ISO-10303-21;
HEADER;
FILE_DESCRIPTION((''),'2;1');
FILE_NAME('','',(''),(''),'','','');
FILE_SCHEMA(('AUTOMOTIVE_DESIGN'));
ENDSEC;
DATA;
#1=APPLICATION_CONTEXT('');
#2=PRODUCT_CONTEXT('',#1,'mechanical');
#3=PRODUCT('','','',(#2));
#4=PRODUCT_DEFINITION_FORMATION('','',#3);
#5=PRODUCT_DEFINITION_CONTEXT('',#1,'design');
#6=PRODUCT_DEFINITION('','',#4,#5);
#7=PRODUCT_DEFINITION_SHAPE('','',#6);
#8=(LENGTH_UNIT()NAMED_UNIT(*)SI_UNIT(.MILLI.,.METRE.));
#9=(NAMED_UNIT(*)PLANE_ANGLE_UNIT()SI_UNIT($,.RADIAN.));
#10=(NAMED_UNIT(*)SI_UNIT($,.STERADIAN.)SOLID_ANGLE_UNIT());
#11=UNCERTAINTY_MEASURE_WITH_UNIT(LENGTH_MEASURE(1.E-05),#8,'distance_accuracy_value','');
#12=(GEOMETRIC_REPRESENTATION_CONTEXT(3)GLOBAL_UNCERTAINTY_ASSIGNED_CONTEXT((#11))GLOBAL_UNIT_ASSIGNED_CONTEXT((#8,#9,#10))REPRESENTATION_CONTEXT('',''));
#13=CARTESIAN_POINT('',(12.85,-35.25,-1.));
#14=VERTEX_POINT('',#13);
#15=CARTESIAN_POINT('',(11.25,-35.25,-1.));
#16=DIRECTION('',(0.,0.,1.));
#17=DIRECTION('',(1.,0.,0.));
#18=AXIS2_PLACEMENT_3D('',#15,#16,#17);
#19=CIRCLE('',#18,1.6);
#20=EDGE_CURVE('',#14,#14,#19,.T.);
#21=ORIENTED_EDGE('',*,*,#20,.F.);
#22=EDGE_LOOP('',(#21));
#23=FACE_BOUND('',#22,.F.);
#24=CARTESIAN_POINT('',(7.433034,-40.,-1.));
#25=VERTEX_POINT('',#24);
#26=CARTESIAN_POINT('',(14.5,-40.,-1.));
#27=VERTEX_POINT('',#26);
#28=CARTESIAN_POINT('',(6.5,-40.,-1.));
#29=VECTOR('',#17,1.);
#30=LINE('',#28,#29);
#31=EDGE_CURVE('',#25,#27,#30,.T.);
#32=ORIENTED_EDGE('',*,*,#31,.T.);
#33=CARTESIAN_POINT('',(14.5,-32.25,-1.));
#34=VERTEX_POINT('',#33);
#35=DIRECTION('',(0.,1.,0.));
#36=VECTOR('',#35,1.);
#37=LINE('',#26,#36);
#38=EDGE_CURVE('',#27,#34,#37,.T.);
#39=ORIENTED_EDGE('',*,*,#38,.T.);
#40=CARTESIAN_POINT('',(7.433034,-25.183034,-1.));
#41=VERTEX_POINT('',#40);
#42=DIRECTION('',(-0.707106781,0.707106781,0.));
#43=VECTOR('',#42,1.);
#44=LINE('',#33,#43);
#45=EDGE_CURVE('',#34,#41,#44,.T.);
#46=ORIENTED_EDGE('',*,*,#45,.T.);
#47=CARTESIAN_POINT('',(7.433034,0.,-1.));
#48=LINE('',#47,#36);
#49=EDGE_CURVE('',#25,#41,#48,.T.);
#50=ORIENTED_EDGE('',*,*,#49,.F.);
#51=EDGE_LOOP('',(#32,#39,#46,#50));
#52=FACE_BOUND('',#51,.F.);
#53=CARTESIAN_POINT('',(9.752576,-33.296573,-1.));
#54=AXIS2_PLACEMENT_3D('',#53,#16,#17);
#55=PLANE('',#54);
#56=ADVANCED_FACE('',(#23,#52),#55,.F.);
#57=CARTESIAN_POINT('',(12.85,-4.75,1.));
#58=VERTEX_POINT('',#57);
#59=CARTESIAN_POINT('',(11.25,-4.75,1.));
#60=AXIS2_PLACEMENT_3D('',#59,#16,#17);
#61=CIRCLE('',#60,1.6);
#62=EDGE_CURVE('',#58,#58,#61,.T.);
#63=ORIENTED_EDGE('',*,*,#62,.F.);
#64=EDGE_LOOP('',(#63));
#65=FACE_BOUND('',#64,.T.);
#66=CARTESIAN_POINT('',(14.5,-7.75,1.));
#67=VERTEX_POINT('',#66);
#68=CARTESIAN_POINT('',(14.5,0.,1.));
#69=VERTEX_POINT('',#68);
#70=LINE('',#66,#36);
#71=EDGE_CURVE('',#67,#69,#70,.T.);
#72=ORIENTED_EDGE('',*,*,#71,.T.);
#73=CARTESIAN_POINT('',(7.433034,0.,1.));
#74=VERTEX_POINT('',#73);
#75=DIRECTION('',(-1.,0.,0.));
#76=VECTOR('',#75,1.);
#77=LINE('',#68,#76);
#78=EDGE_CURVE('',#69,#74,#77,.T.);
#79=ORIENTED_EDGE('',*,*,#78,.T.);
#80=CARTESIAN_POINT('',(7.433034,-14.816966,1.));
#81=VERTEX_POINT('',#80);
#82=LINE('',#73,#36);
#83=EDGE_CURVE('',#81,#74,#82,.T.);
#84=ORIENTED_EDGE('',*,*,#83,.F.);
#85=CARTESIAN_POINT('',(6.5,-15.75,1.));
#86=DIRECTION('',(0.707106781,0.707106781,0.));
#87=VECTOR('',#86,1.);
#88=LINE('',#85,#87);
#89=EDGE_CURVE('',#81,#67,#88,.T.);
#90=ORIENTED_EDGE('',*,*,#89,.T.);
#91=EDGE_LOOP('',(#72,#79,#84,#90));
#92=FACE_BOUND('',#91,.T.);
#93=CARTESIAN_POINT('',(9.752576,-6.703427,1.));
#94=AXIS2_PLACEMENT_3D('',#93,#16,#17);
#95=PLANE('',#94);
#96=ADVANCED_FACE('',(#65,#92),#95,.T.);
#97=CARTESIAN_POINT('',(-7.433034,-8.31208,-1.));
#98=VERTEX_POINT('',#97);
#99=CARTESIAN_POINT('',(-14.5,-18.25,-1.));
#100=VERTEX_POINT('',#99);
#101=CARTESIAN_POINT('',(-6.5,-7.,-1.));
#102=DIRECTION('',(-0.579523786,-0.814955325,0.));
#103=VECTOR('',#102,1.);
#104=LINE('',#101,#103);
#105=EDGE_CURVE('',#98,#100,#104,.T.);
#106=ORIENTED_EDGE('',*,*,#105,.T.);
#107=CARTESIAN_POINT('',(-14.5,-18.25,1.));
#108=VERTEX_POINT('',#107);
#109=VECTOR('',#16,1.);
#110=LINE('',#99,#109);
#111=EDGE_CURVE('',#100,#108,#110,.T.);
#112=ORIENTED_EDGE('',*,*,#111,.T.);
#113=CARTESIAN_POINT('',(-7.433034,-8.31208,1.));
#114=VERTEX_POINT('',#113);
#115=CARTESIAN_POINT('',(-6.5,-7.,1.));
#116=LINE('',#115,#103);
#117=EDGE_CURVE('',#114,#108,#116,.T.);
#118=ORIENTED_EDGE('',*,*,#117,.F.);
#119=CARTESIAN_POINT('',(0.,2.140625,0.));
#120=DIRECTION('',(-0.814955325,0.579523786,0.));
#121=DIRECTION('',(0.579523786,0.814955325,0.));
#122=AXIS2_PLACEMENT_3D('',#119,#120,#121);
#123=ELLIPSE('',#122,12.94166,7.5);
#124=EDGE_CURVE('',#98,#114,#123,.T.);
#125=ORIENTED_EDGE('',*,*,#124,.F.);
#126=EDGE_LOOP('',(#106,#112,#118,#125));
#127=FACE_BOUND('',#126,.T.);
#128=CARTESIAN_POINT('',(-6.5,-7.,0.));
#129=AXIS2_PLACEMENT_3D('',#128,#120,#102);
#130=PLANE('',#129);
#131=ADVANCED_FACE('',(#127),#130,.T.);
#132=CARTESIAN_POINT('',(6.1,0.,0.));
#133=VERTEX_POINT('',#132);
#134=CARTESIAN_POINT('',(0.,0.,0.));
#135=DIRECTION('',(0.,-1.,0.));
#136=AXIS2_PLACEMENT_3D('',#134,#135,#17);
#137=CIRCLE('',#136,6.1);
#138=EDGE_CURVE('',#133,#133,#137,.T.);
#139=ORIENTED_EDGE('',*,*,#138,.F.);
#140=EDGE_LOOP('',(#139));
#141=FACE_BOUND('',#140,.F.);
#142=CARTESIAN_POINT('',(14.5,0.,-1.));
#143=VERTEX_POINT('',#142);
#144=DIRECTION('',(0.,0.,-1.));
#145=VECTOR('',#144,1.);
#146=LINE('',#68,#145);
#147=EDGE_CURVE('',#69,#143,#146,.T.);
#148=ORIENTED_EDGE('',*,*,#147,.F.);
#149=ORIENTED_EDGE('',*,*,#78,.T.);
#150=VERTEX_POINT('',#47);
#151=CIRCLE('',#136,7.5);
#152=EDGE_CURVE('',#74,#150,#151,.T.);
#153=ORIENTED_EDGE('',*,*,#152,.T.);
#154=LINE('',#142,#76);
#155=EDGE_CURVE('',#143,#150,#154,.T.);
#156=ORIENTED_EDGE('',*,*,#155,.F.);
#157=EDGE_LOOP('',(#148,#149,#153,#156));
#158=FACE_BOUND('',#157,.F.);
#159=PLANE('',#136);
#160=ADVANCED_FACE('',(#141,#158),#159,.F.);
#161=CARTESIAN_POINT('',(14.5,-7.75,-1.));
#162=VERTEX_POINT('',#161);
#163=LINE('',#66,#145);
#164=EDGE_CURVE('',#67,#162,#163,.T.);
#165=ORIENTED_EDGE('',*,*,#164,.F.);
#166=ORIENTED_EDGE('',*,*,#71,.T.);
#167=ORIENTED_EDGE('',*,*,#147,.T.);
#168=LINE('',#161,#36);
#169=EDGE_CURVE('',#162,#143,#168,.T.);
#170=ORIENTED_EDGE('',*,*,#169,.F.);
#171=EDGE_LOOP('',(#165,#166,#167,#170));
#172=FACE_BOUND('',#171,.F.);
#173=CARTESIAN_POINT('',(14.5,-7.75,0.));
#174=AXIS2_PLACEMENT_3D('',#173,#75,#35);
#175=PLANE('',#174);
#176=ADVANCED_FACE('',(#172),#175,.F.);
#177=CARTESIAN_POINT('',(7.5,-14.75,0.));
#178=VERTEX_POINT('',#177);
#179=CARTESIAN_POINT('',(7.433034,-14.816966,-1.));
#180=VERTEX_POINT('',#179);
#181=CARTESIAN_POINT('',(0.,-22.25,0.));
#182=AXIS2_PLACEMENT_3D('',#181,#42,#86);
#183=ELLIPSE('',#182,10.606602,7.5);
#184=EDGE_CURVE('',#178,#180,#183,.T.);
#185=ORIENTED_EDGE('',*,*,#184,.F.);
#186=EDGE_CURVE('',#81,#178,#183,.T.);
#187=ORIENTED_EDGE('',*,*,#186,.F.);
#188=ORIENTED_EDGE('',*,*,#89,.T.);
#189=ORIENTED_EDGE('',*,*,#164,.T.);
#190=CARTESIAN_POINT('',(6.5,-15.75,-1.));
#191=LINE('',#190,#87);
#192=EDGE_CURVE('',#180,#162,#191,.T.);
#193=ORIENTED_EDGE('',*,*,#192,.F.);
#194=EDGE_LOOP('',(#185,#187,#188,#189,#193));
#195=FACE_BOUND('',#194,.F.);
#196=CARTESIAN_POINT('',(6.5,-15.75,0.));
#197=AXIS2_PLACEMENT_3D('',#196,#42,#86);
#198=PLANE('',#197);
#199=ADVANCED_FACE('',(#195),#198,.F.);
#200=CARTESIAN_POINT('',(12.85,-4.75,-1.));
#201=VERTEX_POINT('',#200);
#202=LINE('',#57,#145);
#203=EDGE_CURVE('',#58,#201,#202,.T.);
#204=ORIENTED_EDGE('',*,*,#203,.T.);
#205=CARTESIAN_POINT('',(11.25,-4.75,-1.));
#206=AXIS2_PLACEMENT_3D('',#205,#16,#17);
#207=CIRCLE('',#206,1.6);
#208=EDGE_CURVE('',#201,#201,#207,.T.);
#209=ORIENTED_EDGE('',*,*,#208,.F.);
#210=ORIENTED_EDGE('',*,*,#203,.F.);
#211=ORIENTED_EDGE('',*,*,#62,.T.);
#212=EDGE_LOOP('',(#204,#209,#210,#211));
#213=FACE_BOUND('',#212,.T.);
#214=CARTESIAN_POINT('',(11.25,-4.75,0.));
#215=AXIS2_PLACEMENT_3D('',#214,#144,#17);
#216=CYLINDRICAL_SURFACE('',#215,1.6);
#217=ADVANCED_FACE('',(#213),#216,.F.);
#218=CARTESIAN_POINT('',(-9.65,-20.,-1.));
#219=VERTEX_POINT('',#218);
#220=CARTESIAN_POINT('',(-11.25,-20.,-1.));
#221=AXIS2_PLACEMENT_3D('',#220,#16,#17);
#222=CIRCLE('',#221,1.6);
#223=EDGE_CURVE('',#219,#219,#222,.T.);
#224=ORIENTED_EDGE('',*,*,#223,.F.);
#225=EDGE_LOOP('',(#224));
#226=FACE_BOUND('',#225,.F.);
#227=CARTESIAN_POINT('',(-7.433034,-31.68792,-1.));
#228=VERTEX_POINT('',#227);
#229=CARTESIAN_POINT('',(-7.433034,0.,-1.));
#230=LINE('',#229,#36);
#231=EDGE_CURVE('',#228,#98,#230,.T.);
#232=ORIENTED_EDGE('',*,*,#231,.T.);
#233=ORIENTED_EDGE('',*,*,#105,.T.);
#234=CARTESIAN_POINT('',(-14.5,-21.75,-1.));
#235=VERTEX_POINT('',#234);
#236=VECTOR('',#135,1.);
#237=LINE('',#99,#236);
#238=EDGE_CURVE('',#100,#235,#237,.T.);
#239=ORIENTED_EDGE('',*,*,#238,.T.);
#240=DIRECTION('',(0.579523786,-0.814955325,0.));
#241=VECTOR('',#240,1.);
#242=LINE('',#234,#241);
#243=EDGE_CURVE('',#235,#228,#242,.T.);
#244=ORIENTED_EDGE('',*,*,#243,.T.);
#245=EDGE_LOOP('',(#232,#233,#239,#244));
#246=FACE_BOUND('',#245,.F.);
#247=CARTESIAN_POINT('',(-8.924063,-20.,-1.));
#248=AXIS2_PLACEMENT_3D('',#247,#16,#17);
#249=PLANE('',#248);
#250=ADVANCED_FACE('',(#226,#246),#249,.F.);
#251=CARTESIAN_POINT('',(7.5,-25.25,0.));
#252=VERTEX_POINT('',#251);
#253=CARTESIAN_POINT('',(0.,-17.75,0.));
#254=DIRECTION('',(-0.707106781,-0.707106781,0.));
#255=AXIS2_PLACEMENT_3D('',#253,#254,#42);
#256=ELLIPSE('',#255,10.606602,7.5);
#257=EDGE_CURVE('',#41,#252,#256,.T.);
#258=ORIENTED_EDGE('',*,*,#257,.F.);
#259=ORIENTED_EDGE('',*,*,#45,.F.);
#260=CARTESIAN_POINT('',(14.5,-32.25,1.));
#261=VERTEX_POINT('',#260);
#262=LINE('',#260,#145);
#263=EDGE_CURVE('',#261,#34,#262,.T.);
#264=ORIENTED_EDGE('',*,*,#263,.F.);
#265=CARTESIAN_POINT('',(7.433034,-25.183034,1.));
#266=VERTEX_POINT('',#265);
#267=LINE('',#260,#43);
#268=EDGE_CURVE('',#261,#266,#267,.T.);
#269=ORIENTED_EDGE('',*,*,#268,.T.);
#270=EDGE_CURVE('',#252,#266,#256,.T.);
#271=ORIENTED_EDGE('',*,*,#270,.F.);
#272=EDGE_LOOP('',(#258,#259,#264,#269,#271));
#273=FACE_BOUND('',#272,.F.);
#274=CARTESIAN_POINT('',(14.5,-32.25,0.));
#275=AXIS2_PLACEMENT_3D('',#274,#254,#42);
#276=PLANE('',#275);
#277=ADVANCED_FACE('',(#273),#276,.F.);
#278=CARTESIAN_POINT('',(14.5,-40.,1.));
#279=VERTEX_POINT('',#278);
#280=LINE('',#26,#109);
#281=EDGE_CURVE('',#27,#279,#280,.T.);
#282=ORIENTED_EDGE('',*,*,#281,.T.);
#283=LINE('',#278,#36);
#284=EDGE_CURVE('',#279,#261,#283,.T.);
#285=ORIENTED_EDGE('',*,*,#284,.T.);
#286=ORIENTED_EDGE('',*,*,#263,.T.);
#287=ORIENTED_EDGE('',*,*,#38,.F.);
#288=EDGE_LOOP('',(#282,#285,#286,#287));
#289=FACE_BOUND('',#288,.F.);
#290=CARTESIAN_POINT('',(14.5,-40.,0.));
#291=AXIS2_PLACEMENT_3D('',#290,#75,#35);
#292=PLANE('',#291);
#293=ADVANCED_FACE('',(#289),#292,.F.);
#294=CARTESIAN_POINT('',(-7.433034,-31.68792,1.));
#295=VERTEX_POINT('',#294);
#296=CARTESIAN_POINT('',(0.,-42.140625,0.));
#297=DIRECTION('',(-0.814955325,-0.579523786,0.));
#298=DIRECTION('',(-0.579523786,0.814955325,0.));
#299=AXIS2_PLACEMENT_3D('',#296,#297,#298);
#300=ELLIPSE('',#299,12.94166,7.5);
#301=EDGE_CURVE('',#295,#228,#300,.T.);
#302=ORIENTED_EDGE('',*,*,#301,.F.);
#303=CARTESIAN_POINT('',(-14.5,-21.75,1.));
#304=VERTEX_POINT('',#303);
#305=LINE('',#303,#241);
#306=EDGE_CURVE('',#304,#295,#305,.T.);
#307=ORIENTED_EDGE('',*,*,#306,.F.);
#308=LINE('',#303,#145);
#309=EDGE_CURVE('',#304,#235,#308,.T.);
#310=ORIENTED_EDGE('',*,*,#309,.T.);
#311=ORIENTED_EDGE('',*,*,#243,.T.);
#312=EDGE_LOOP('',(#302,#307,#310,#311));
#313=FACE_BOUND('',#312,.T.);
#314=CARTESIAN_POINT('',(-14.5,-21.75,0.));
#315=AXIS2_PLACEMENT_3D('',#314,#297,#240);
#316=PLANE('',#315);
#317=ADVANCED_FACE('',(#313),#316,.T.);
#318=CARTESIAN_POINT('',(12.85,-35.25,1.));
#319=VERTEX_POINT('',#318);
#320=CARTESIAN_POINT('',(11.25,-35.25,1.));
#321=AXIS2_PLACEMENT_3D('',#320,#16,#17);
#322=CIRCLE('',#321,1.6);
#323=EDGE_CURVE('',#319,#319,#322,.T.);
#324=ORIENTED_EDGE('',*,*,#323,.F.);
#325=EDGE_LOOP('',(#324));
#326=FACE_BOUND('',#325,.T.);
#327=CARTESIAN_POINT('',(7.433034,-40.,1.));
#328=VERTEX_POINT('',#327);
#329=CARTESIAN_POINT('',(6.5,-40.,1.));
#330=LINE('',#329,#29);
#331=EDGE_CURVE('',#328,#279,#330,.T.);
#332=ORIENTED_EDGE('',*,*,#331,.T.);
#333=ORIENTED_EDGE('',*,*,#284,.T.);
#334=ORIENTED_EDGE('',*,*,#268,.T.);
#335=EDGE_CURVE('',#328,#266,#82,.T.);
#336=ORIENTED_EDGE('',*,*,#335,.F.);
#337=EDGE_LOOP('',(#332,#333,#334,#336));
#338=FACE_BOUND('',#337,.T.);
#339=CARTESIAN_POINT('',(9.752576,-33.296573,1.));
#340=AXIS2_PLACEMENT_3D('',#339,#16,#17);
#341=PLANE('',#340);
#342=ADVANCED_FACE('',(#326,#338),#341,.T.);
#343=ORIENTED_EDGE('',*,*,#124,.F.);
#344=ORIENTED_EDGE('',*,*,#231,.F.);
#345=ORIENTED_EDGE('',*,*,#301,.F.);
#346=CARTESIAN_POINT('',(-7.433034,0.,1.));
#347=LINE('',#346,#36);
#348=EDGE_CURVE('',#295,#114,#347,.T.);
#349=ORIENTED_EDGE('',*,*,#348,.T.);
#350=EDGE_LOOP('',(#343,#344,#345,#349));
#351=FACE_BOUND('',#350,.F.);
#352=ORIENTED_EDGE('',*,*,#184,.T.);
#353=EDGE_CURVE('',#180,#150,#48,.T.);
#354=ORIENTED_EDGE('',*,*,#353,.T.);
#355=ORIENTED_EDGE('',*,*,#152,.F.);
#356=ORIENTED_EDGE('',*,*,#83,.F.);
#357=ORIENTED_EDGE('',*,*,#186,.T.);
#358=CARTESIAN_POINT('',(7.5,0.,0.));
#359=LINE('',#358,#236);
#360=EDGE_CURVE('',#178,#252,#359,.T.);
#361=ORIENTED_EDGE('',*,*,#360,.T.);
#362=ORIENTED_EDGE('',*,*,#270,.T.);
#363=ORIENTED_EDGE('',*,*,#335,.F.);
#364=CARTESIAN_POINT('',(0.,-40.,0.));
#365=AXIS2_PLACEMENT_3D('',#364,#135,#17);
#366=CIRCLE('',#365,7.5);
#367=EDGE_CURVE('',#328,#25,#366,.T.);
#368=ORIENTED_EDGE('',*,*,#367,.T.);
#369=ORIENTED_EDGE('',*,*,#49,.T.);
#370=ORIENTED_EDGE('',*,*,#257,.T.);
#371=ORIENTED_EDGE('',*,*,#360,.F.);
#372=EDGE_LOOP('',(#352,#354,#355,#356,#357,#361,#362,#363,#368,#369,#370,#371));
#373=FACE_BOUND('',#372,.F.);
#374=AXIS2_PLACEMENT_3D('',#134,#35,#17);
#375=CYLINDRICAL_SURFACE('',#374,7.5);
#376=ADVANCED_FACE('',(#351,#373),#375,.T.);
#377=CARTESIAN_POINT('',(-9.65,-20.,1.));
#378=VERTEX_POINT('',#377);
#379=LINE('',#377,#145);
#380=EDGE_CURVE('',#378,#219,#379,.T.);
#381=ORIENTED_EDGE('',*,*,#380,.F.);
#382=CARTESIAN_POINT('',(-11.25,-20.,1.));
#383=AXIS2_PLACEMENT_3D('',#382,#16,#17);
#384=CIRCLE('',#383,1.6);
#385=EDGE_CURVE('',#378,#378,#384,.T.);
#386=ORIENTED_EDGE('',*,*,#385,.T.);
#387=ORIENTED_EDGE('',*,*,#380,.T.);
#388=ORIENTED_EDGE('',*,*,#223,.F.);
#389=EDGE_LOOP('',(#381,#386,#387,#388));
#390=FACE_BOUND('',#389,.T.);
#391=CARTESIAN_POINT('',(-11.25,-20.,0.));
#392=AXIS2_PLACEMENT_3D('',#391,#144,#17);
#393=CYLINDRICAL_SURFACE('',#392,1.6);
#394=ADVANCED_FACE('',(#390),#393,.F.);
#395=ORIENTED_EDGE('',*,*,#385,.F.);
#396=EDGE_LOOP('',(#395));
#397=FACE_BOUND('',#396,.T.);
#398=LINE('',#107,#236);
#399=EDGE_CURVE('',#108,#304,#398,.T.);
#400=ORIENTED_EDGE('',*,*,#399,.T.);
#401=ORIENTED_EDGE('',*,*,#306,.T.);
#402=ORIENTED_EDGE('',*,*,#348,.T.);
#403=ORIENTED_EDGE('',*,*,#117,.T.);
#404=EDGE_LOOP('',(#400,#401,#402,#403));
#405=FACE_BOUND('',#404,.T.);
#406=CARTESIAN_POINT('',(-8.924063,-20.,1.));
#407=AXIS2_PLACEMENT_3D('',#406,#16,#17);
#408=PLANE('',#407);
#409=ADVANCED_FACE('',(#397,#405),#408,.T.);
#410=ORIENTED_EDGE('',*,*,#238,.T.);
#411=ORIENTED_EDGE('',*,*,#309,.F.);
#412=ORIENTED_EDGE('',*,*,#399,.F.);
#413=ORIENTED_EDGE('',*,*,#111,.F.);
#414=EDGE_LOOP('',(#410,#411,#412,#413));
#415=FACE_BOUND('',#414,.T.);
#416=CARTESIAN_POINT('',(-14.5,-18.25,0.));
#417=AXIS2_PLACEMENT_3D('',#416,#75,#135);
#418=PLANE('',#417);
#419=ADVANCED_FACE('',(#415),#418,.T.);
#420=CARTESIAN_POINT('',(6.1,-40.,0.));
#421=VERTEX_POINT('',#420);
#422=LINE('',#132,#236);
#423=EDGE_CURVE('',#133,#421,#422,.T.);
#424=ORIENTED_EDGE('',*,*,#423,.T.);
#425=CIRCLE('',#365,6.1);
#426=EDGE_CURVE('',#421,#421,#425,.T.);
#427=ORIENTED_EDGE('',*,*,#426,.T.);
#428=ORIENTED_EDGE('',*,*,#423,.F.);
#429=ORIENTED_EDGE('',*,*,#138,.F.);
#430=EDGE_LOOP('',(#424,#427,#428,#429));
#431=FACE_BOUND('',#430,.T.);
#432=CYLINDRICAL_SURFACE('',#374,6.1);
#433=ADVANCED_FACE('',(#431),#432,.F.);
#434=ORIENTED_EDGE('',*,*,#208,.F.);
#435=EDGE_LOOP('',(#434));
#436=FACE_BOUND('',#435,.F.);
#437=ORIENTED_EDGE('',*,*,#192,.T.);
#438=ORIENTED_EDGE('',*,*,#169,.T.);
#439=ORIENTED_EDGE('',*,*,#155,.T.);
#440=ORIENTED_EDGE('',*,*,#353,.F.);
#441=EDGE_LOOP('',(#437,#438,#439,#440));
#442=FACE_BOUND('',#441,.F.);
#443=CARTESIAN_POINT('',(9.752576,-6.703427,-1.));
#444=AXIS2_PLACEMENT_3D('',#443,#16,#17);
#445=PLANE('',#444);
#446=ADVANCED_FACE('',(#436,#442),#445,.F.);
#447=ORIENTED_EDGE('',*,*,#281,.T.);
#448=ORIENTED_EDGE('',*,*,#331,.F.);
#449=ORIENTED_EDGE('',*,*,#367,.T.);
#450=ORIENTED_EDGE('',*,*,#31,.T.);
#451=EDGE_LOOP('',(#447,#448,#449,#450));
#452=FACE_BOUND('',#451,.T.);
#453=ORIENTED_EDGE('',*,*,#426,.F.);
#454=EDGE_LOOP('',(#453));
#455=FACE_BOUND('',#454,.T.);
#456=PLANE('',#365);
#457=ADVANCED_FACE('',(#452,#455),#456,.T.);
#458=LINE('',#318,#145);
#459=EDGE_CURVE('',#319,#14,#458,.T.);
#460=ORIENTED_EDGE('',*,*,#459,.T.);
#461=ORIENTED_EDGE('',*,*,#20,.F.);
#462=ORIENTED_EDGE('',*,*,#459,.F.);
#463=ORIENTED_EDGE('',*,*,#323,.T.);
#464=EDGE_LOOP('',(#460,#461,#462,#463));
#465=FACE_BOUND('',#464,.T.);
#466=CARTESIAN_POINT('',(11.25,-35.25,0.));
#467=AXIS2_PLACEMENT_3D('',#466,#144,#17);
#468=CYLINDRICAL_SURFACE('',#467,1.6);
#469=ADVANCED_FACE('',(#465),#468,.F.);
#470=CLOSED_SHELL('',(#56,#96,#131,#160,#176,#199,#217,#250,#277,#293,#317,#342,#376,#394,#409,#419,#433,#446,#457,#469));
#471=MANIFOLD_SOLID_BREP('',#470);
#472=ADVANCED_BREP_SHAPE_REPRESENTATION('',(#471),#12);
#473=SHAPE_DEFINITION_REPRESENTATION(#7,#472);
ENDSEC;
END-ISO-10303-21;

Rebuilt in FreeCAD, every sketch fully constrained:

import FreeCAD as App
import Part
import Sketcher


def add_polygon(sketch, points):
    """Adds a closed chain of lines whose ends are joined by coincident constraints."""
    first, n = sketch.GeometryCount, len(points)
    for a, b in zip(points, points[1:] + points[:1]):
        sketch.addGeometry(Part.LineSegment(App.Vector(*a, 0), App.Vector(*b, 0)), False)
    for i in range(n):
        sketch.addConstraint(Sketcher.Constraint("Coincident", first + i, 2, first + (i + 1) % n, 1))

doc = App.newDocument("Part")
body = doc.addObject("PartDesign::Body", "Body")

sketch1 = doc.addObject("Sketcher::SketchObject", "Sketch")
body.addObject(sketch1)
sketch1.AttachmentSupport = (doc.XZ_Plane, [""])
sketch1.MapMode = "FlatFace"
sketch1.addGeometry(Part.Circle(App.Vector(0, 0, 0), App.Vector(0, 0, 1), 7.5), False)
sketch1.addGeometry(Part.Circle(App.Vector(0, 0, 0), App.Vector(0, 0, 1), 6.1), False)
sketch1.addConstraint(Sketcher.Constraint("Coincident", 0, 3, -1, 1))
sketch1.addConstraint(Sketcher.Constraint("Coincident", 1, 3, -1, 1))
sketch1.addConstraint(Sketcher.Constraint("Diameter", 0, 15.0))
sketch1.addConstraint(Sketcher.Constraint("Diameter", 1, 12.2))
pad1 = doc.addObject("PartDesign::Pad", "Pad")
body.addObject(pad1)
pad1.Profile = sketch1
pad1.Length = 40

sketch2 = doc.addObject("Sketcher::SketchObject", "Sketch001")
body.addObject(sketch2)
sketch2.AttachmentSupport = (doc.XY_Plane, [""])
sketch2.MapMode = "FlatFace"
add_polygon(sketch2, [(14.5, 0), (6.5, 0), (6.5, -15.75), (14.5, -7.75)])
sketch2.addGeometry(Part.Circle(App.Vector(11.25, -4.75, 0), App.Vector(0, 0, 1), 1.6), False)
add_polygon(sketch2, [(6.5, -24.25), (6.5, -40), (14.5, -40), (14.5, -32.25)])
sketch2.addGeometry(Part.Circle(App.Vector(11.25, -35.25, 0), App.Vector(0, 0, 1), 1.6), False)
add_polygon(sketch2, [(-6.5, -33), (-6.5, -7), (-14.5, -18.25), (-14.5, -21.75)])
sketch2.addGeometry(Part.Circle(App.Vector(-11.25, -20, 0), App.Vector(0, 0, 1), 1.6), False)
sketch2.addConstraint(Sketcher.Constraint("Horizontal", 0))
sketch2.addConstraint(Sketcher.Constraint("Vertical", 1))
sketch2.addConstraint(Sketcher.Constraint("Vertical", 3))
sketch2.addConstraint(Sketcher.Constraint("Vertical", 5))
sketch2.addConstraint(Sketcher.Constraint("Horizontal", 6))
sketch2.addConstraint(Sketcher.Constraint("Vertical", 7))
sketch2.addConstraint(Sketcher.Constraint("Vertical", 10))
sketch2.addConstraint(Sketcher.Constraint("Vertical", 12))
sketch2.addConstraint(Sketcher.Constraint("Equal", 4, 9))
sketch2.addConstraint(Sketcher.Constraint("Equal", 9, 14))
sketch2.addConstraint(Sketcher.Constraint("PointOnObject", 0, 2, -1))
sketch2.addConstraint(Sketcher.Constraint("Perpendicular", 2, 8))
sketch2.addConstraint(Sketcher.Constraint("Vertical", 4, 3, 9, 3))
sketch2.addConstraint(Sketcher.Constraint("Vertical", 1, 2, 5, 2))
sketch2.addConstraint(Sketcher.Constraint("Vertical", 3, 2, 6, 2))
sketch2.addConstraint(Sketcher.Constraint("Equal", 1, 5))
sketch2.addConstraint(Sketcher.Constraint("Equal", 3, 7))
sketch2.addConstraint(Sketcher.Constraint("Equal", 11, 13))
sketch2.addConstraint(Sketcher.Constraint("Diameter", 4, 3.2))
sketch2.addConstraint(Sketcher.Constraint("DistanceX", 0, 2, 0, 1, 8.0))
sketch2.addConstraint(Sketcher.Constraint("DistanceY", 10, 1, 10, 2, 26.0))
sketch2.addConstraint(Sketcher.Constraint("DistanceY", 12, 2, 12, 1, 3.5))
sketch2.addConstraint(Sketcher.Constraint("DistanceY", 14, 3, -1, 1, 20.0))
sketch2.addConstraint(Sketcher.Constraint("DistanceY", 5, 2, -1, 1, 40.0))
sketch2.addConstraint(Sketcher.Constraint("DistanceY", 10, 2, -1, 1, 7.0))
sketch2.addConstraint(Sketcher.Constraint("DistanceY", 1, 2, 4, 3, 11.0))
sketch2.addConstraint(Sketcher.Constraint("DistanceY", 9, 3, 7, 2, 3.0))
sketch2.addConstraint(Sketcher.Constraint("DistanceX", 10, 2, 0, 2, 13.0))
sketch2.addConstraint(Sketcher.Constraint("DistanceX", 11, 2, 10, 2, 8.0))
sketch2.addConstraint(Sketcher.Constraint("DistanceY", 8, 2, 11, 2, 6.0))
sketch2.addConstraint(Sketcher.Constraint("DistanceX", -1, 1, 0, 2, 6.5))
sketch2.addConstraint(Sketcher.Constraint("DistanceX", 14, 3, 4, 3, 22.5))
sketch2.addConstraint(Sketcher.Constraint("DistanceX", -1, 1, 4, 3, 11.25))
pad2 = doc.addObject("PartDesign::Pad", "Pad001")
body.addObject(pad2)
pad2.Profile = sketch2
pad2.Length = 2
pad2.Midplane = True

doc.recompute()
